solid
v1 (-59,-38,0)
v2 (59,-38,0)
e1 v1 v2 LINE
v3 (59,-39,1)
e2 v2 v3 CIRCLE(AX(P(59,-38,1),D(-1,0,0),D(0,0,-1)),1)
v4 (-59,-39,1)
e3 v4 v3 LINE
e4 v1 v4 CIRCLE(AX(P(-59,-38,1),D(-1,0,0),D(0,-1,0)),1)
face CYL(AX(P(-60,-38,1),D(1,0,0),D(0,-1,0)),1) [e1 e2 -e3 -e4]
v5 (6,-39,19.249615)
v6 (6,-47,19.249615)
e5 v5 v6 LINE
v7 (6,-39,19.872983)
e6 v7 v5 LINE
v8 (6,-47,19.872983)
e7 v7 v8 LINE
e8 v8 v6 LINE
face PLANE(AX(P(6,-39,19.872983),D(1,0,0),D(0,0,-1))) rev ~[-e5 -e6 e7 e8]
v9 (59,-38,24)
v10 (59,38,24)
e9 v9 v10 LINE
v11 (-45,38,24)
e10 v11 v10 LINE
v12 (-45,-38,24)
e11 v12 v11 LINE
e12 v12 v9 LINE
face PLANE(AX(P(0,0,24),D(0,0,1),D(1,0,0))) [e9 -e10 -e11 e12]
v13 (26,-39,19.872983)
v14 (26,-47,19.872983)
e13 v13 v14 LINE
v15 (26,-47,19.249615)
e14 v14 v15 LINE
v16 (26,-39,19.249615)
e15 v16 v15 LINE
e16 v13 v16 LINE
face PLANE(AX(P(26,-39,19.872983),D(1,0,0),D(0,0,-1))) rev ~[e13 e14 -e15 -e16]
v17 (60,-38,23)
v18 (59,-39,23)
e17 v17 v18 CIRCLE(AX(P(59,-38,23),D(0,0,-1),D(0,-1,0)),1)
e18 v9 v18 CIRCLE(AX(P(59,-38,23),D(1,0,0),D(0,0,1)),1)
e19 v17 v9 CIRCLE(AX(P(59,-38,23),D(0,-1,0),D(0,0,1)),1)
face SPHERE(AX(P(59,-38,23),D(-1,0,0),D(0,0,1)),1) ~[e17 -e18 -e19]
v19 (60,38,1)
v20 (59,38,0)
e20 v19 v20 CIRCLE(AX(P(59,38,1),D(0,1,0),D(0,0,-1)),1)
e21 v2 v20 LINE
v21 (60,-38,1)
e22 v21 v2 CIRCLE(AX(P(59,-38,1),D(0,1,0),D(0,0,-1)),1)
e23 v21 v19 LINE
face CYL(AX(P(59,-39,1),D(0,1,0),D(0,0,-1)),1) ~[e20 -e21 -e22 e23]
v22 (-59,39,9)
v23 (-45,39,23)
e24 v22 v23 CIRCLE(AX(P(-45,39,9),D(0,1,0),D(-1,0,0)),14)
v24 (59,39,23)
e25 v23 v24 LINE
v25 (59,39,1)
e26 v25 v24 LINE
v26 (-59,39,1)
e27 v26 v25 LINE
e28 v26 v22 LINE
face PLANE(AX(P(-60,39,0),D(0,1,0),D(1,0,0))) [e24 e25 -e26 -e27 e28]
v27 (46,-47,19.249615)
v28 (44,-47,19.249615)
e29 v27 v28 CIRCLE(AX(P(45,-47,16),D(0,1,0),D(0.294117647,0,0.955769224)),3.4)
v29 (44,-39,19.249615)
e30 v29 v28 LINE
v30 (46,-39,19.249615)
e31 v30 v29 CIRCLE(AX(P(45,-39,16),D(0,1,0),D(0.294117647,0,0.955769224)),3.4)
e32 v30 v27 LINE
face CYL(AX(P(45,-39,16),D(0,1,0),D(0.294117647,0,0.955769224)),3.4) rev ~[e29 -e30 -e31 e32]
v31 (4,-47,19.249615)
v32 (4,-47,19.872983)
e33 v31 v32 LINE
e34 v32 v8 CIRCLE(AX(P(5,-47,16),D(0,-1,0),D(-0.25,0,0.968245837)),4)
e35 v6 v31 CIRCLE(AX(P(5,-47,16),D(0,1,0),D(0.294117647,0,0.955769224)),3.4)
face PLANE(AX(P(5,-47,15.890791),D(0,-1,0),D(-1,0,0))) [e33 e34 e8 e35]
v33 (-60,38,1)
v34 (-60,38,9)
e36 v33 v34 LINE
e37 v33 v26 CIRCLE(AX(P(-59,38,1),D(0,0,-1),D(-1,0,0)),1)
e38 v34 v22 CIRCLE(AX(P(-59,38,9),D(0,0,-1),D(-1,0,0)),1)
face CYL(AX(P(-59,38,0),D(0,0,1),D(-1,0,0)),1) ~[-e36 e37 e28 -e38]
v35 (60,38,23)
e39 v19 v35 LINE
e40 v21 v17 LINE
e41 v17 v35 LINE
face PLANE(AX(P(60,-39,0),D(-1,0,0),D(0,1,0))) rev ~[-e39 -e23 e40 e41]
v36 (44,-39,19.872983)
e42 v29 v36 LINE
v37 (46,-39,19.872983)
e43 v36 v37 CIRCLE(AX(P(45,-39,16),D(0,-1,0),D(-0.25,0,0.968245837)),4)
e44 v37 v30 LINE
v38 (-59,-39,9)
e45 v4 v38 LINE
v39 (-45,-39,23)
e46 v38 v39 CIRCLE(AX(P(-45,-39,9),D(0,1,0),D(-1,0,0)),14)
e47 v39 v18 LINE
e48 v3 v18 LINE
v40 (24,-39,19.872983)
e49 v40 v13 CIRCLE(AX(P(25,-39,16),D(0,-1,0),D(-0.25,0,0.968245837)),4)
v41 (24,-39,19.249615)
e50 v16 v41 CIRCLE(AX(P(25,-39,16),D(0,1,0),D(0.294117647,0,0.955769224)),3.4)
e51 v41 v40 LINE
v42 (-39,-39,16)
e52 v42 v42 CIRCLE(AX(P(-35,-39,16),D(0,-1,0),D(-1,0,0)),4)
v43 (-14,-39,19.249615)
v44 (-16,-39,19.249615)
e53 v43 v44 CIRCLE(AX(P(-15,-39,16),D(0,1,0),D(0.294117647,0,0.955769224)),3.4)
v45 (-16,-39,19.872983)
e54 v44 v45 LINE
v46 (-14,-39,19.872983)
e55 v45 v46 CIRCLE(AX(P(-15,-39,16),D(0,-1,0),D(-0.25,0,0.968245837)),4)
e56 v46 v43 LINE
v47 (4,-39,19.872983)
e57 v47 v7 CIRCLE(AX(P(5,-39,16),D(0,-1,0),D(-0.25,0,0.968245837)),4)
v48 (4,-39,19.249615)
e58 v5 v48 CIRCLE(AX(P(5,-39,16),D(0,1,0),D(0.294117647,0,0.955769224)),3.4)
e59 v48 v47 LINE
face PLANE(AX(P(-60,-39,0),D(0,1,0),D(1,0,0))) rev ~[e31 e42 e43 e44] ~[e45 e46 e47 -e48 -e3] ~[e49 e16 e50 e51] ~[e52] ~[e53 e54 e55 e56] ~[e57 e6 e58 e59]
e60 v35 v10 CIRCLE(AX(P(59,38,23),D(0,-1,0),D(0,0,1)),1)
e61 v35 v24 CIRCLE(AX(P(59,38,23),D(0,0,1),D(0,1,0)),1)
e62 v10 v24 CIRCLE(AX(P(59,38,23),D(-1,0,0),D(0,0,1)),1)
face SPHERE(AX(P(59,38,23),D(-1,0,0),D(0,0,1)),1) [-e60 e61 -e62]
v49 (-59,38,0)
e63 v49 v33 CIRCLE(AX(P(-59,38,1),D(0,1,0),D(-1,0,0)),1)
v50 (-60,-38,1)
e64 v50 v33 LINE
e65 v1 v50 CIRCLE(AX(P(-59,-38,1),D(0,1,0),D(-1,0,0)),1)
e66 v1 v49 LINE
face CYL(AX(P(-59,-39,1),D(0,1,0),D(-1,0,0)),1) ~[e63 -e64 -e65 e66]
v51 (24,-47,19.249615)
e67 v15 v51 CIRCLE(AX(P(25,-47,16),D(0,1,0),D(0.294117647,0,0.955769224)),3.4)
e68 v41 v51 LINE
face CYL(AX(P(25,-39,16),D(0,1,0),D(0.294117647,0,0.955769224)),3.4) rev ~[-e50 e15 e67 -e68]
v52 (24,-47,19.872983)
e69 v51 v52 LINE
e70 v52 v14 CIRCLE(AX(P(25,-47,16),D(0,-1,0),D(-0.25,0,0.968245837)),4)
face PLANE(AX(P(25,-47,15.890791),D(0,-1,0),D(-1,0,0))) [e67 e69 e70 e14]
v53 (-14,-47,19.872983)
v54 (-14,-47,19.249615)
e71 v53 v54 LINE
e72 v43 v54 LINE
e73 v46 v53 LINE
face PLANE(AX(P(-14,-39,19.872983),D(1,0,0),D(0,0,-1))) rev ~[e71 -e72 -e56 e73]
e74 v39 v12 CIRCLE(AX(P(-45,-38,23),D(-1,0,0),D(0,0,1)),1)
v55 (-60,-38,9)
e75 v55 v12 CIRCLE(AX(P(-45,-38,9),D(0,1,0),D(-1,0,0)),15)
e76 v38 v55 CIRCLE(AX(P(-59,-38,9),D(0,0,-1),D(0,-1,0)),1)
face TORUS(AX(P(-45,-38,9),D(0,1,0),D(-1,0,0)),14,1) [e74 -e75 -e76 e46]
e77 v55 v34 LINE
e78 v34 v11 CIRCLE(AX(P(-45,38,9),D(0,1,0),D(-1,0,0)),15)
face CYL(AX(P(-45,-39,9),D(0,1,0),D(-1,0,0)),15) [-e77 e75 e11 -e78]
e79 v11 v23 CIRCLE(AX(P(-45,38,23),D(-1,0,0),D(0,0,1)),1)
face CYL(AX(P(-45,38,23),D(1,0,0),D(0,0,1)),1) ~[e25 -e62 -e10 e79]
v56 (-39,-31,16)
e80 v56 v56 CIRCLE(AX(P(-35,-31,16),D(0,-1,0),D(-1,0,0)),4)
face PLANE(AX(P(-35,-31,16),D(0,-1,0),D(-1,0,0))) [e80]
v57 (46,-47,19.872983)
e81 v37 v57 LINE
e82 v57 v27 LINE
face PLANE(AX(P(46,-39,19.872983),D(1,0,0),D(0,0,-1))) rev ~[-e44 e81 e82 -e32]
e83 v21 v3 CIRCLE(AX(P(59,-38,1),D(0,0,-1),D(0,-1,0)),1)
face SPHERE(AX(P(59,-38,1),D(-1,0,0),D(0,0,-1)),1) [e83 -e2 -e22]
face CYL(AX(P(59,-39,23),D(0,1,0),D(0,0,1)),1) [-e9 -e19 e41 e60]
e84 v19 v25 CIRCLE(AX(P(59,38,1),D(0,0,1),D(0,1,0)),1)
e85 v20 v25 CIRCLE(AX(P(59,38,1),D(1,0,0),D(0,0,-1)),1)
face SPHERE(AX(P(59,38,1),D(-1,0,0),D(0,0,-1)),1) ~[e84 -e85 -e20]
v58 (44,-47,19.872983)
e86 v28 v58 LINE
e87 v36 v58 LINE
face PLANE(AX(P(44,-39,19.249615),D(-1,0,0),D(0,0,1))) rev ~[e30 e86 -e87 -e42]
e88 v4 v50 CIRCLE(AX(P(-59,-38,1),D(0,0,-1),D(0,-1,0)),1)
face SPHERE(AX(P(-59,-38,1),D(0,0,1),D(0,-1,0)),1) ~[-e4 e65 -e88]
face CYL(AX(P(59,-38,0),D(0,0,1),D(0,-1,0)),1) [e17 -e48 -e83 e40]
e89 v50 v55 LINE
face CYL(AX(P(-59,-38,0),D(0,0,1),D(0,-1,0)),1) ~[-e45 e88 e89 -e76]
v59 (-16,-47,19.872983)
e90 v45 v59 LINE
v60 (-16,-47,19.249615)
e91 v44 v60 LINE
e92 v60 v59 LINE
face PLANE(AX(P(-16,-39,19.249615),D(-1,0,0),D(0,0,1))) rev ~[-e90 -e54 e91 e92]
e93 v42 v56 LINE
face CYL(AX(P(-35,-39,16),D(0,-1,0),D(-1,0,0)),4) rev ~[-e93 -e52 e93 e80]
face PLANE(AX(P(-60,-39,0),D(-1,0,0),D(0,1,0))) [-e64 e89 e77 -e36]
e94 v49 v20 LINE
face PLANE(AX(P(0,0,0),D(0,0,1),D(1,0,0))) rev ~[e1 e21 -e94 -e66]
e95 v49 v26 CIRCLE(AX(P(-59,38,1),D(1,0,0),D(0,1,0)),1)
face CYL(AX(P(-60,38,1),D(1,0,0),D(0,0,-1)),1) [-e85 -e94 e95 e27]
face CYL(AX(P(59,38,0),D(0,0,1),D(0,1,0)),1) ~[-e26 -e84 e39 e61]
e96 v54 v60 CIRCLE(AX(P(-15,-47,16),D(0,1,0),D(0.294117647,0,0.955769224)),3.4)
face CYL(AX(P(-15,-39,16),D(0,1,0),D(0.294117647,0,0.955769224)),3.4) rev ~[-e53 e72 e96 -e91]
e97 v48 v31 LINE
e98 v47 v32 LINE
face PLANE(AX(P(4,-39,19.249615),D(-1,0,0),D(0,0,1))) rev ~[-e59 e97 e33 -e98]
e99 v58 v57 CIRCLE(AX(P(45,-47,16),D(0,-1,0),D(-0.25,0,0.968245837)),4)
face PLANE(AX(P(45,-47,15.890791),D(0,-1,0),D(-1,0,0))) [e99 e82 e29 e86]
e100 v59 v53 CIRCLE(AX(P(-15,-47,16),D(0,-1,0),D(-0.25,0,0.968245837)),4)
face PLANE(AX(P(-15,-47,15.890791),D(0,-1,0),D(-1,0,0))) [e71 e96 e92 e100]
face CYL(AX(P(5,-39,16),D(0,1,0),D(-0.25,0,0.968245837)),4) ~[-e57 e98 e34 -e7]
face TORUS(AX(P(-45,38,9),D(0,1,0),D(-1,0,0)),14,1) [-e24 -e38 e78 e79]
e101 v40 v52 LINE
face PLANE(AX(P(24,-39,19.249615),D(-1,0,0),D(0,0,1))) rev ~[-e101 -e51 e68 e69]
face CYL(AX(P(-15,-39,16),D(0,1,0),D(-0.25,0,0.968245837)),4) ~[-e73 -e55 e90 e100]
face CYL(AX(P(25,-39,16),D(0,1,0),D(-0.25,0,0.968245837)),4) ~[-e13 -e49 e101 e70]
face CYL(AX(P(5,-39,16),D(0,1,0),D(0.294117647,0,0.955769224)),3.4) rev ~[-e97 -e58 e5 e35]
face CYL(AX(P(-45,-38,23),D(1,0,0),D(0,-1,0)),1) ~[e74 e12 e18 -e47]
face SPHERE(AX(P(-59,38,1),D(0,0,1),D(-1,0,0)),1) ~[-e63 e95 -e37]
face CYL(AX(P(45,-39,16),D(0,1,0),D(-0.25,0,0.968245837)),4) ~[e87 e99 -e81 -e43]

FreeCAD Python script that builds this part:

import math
import FreeCAD as App
import Part
import Sketcher


def edges_at(feature, points):
    """Names of the edges that pass closest to the given points."""
    edges = feature.Shape.Edges
    near = lambda p: min(range(len(edges)), key=lambda i: edges[i].distToShape(Part.Vertex(*p))[0])
    return sorted({f"Edge{near(p) + 1}" for p in points})


def add_polygon(sketch, points):
    """Adds a closed chain of lines whose ends are joined by coincident constraints."""
    first, n = sketch.GeometryCount, len(points)
    for a, b in zip(points, points[1:] + points[:1]):
        sketch.addGeometry(Part.LineSegment(App.Vector(*a, 0), App.Vector(*b, 0)), False)
    for i in range(n):
        sketch.addConstraint(Sketcher.Constraint("Coincident", first + i, 2, first + (i + 1) % n, 1))

doc = App.newDocument("Part")
params = doc.addObject("Spreadsheet::Sheet", "Params")
for row, (alias, value) in enumerate([
    ("sketch1_width", "120 mm"),
    ("sketch1_height", "78 mm"),
    ("pad1_length", "24 mm"),
    ("fillet_radius", "15 mm"),
    ("fillet2_radius", "1 mm"),
    ("sketch2_radius", "4 mm"),
    ("sketch2_radius2", "3.4 mm"),
    ("pad2_length", "8 mm"),
    ("sketch3_diameter", "8 mm"),
    ("pocket1_length", "8 mm"),
], start=1):
    params.set(f"A{row}", alias)
    params.set(f"B{row}", "=" + value)
    params.setAlias(f"B{row}", alias)

body = doc.addObject("PartDesign::Body", "Body")

# Sketch on XY plane
sketch1 = doc.addObject("Sketcher::SketchObject", "Sketch")
body.addObject(sketch1)
sketch1.AttachmentSupport = (doc.XY_Plane, [""])
sketch1.MapMode = "FlatFace"
add_polygon(sketch1, [(-60, 39), (-60, -39), (60, -39), (60, 39)])  # lines 0-3
sketch1.addConstraint(Sketcher.Constraint("Vertical", 0))
sketch1.addConstraint(Sketcher.Constraint("Horizontal", 1))
sketch1.addConstraint(Sketcher.Constraint("Vertical", 2))
sketch1.addConstraint(Sketcher.Constraint("Horizontal", 3))
sketch1.addConstraint(Sketcher.Constraint("Symmetric", 0, 2, 2, 2, -1, 1))
sketch1.addConstraint(Sketcher.Constraint("DistanceX", 1, 1, 1, 2, 120.0))
sketch1.addConstraint(Sketcher.Constraint("DistanceY", 0, 2, 0, 1, 78.0))
sketch1.setExpression("Constraints[9]", "Params.sketch1_width")
sketch1.setExpression("Constraints[10]", "Params.sketch1_height")
pad1 = doc.addObject("PartDesign::Pad", "Pad")
body.addObject(pad1)
pad1.Profile = sketch1
pad1.setExpression("Length", "Params.pad1_length")
doc.recompute()

fillet = doc.addObject("PartDesign::Fillet", "Fillet")
body.addObject(fillet)
fillet.Base = (pad1, edges_at(pad1, [(-60, 0, 24)]))
fillet.setExpression("Radius", "Params.fillet_radius")
doc.recompute()

fillet2 = doc.addObject("PartDesign::Fillet", "Fillet001")
body.addObject(fillet2)
fillet2.Base = (fillet, ["Edge1"])
fillet2.UseAllEdges = True
fillet2.setExpression("Radius", "Params.fillet2_radius")

# Sketch on XZ plane
sketch2 = doc.addObject("Sketcher::SketchObject", "Sketch001")
body.addObject(sketch2)
sketch2.AttachmentSupport = (doc.XZ_Plane, [""])
sketch2.MapMode = "FlatFace"
sketch2.AttachmentOffset = App.Placement(App.Vector(0, 0, 39), App.Rotation())
sketch2.addGeometry(Part.LineSegment(App.Vector(-16, 19.2, 0), App.Vector(-16, 19.9, 0)), False)
sketch2.addGeometry(Part.ArcOfCircle(Part.Circle(App.Vector(-15, 16, 0), App.Vector(0, 0, 1), 4), math.radians(104), math.radians(436)), False)
sketch2.addGeometry(Part.LineSegment(App.Vector(-14, 19.9, 0), App.Vector(-14, 19.2, 0)), False)
sketch2.addGeometry(Part.ArcOfCircle(Part.Circle(App.Vector(-15, 16, 0), App.Vector(0, 0, 1), 3.4), math.radians(107), math.radians(433)), False)
sketch2.addGeometry(Part.ArcOfCircle(Part.Circle(App.Vector(5, 16, 0), App.Vector(0, 0, 1), 4), math.radians(104), math.radians(436)), False)
sketch2.addGeometry(Part.LineSegment(App.Vector(6, 19.9, 0), App.Vector(6, 19.2, 0)), False)
sketch2.addGeometry(Part.ArcOfCircle(Part.Circle(App.Vector(5, 16, 0), App.Vector(0, 0, 1), 3.4), math.radians(107), math.radians(433)), False)
sketch2.addGeometry(Part.LineSegment(App.Vector(4, 19.2, 0), App.Vector(4, 19.9, 0)), False)
sketch2.addGeometry(Part.ArcOfCircle(Part.Circle(App.Vector(25, 16, 0), App.Vector(0, 0, 1), 4), math.radians(104), math.radians(436)), False)
sketch2.addGeometry(Part.LineSegment(App.Vector(26, 19.9, 0), App.Vector(26, 19.2, 0)), False)
sketch2.addGeometry(Part.ArcOfCircle(Part.Circle(App.Vector(25, 16, 0), App.Vector(0, 0, 1), 3.4), math.radians(107), math.radians(433)), False)
sketch2.addGeometry(Part.LineSegment(App.Vector(24, 19.2, 0), App.Vector(24, 19.9, 0)), False)
sketch2.addGeometry(Part.ArcOfCircle(Part.Circle(App.Vector(45, 16, 0), App.Vector(0, 0, 1), 4), math.radians(104), math.radians(436)), False)
sketch2.addGeometry(Part.LineSegment(App.Vector(46, 19.9, 0), App.Vector(46, 19.2, 0)), False)
sketch2.addGeometry(Part.ArcOfCircle(Part.Circle(App.Vector(45, 16, 0), App.Vector(0, 0, 1), 3.4), math.radians(107), math.radians(433)), False)
sketch2.addGeometry(Part.LineSegment(App.Vector(44, 19.2, 0), App.Vector(44, 19.9, 0)), False)
sketch2.addConstraint(Sketcher.Constraint("Coincident", 0, 2, 1, 1))
sketch2.addConstraint(Sketcher.Constraint("Coincident", 1, 2, 2, 1))
sketch2.addConstraint(Sketcher.Constraint("Coincident", 2, 2, 3, 2))
sketch2.addConstraint(Sketcher.Constraint("Coincident", 3, 1, 0, 1))
sketch2.addConstraint(Sketcher.Constraint("Coincident", 4, 2, 5, 1))
sketch2.addConstraint(Sketcher.Constraint("Coincident", 5, 2, 6, 2))
sketch2.addConstraint(Sketcher.Constraint("Coincident", 6, 1, 7, 1))
sketch2.addConstraint(Sketcher.Constraint("Coincident", 7, 2, 4, 1))
sketch2.addConstraint(Sketcher.Constraint("Coincident", 8, 2, 9, 1))
sketch2.addConstraint(Sketcher.Constraint("Coincident", 9, 2, 10, 2))
sketch2.addConstraint(Sketcher.Constraint("Coincident", 10, 1, 11, 1))
sketch2.addConstraint(Sketcher.Constraint("Coincident", 11, 2, 8, 1))
sketch2.addConstraint(Sketcher.Constraint("Coincident", 12, 2, 13, 1))
sketch2.addConstraint(Sketcher.Constraint("Coincident", 13, 2, 14, 2))
sketch2.addConstraint(Sketcher.Constraint("Coincident", 14, 1, 15, 1))
sketch2.addConstraint(Sketcher.Constraint("Coincident", 15, 2, 12, 1))
sketch2.addConstraint(Sketcher.Constraint("Vertical", 0))
sketch2.addConstraint(Sketcher.Constraint("Vertical", 2))
sketch2.addConstraint(Sketcher.Constraint("Vertical", 5))
sketch2.addConstraint(Sketcher.Constraint("Vertical", 7))
sketch2.addConstraint(Sketcher.Constraint("Vertical", 9))
sketch2.addConstraint(Sketcher.Constraint("Vertical", 11))
sketch2.addConstraint(Sketcher.Constraint("Vertical", 13))
sketch2.addConstraint(Sketcher.Constraint("Vertical", 15))
sketch2.addConstraint(Sketcher.Constraint("Coincident", 3, 3, 1, 3))
sketch2.addConstraint(Sketcher.Constraint("Coincident", 6, 3, 4, 3))
sketch2.addConstraint(Sketcher.Constraint("Coincident", 10, 3, 8, 3))
sketch2.addConstraint(Sketcher.Constraint("Coincident", 14, 3, 12, 3))
sketch2.addConstraint(Sketcher.Constraint("Equal", 1, 4))
sketch2.addConstraint(Sketcher.Constraint("Equal", 3, 6))
sketch2.addConstraint(Sketcher.Constraint("Equal", 4, 8))
sketch2.addConstraint(Sketcher.Constraint("Equal", 6, 10))
sketch2.addConstraint(Sketcher.Constraint("Equal", 8, 12))
sketch2.addConstraint(Sketcher.Constraint("Equal", 10, 14))
sketch2.addConstraint(Sketcher.Constraint("Horizontal", 3, 3, 4, 3))
sketch2.addConstraint(Sketcher.Constraint("Horizontal", 6, 3, 8, 3))
sketch2.addConstraint(Sketcher.Constraint("Horizontal", 10, 3, 12, 3))
sketch2.addConstraint(Sketcher.Constraint("Horizontal", 0, 2, 1, 2))
sketch2.addConstraint(Sketcher.Constraint("Horizontal", 1, 2, 4, 2))
sketch2.addConstraint(Sketcher.Constraint("Horizontal", 5, 2, 6, 1))
sketch2.addConstraint(Sketcher.Constraint("Horizontal", 7, 2, 8, 2))
sketch2.addConstraint(Sketcher.Constraint("Horizontal", 9, 2, 10, 1))
sketch2.addConstraint(Sketcher.Constraint("Horizontal", 11, 2, 12, 2))
sketch2.addConstraint(Sketcher.Constraint("Horizontal", 13, 2, 14, 1))
sketch2.addConstraint(Sketcher.Constraint("Radius", 1, 4.0))
sketch2.addConstraint(Sketcher.Constraint("Radius", 3, 3.4))
sketch2.addConstraint(Sketcher.Constraint("DistanceX", 1, 3, -1, 1, 15.0))
sketch2.addConstraint(Sketcher.Constraint("DistanceY", -1, 1, 1, 3, 16.0))
sketch2.addConstraint(Sketcher.Constraint("DistanceX", -1, 1, 4, 3, 5.0))
sketch2.addConstraint(Sketcher.Constraint("DistanceX", -1, 1, 8, 3, 25.0))
sketch2.addConstraint(Sketcher.Constraint("DistanceX", -1, 1, 12, 3, 45.0))
sketch2.addConstraint(Sketcher.Constraint("DistanceX", 0, 2, -1, 1, 16.0))
sketch2.setExpression("Constraints[44]", "Params.sketch2_radius")
sketch2.setExpression("Constraints[45]", "Params.sketch2_radius2")
pad2 = doc.addObject("PartDesign::Pad", "Pad001")
body.addObject(pad2)
pad2.Profile = sketch2
pad2.setExpression("Length", "Params.pad2_length")

# Sketch on XZ plane
sketch3 = doc.addObject("Sketcher::SketchObject", "Sketch002")
body.addObject(sketch3)
sketch3.AttachmentSupport = (doc.XZ_Plane, [""])
sketch3.MapMode = "FlatFace"
sketch3.AttachmentOffset = App.Placement(App.Vector(0, 0, 39), App.Rotation())
sketch3.addGeometry(Part.Circle(App.Vector(-35, 16, 0), App.Vector(0, 0, 1), 4), False)
sketch3.addConstraint(Sketcher.Constraint("Diameter", 0, 8.0))
sketch3.addConstraint(Sketcher.Constraint("DistanceX", 0, 3, -1, 1, 35.0))
sketch3.addConstraint(Sketcher.Constraint("DistanceY", -1, 1, 0, 3, 16.0))
sketch3.setExpression("Constraints[0]", "Params.sketch3_diameter")
pocket1 = doc.addObject("PartDesign::Pocket", "Pocket")
body.addObject(pocket1)
pocket1.Profile = sketch3
pocket1.setExpression("Length", "Params.pocket1_length")

doc.recompute()
